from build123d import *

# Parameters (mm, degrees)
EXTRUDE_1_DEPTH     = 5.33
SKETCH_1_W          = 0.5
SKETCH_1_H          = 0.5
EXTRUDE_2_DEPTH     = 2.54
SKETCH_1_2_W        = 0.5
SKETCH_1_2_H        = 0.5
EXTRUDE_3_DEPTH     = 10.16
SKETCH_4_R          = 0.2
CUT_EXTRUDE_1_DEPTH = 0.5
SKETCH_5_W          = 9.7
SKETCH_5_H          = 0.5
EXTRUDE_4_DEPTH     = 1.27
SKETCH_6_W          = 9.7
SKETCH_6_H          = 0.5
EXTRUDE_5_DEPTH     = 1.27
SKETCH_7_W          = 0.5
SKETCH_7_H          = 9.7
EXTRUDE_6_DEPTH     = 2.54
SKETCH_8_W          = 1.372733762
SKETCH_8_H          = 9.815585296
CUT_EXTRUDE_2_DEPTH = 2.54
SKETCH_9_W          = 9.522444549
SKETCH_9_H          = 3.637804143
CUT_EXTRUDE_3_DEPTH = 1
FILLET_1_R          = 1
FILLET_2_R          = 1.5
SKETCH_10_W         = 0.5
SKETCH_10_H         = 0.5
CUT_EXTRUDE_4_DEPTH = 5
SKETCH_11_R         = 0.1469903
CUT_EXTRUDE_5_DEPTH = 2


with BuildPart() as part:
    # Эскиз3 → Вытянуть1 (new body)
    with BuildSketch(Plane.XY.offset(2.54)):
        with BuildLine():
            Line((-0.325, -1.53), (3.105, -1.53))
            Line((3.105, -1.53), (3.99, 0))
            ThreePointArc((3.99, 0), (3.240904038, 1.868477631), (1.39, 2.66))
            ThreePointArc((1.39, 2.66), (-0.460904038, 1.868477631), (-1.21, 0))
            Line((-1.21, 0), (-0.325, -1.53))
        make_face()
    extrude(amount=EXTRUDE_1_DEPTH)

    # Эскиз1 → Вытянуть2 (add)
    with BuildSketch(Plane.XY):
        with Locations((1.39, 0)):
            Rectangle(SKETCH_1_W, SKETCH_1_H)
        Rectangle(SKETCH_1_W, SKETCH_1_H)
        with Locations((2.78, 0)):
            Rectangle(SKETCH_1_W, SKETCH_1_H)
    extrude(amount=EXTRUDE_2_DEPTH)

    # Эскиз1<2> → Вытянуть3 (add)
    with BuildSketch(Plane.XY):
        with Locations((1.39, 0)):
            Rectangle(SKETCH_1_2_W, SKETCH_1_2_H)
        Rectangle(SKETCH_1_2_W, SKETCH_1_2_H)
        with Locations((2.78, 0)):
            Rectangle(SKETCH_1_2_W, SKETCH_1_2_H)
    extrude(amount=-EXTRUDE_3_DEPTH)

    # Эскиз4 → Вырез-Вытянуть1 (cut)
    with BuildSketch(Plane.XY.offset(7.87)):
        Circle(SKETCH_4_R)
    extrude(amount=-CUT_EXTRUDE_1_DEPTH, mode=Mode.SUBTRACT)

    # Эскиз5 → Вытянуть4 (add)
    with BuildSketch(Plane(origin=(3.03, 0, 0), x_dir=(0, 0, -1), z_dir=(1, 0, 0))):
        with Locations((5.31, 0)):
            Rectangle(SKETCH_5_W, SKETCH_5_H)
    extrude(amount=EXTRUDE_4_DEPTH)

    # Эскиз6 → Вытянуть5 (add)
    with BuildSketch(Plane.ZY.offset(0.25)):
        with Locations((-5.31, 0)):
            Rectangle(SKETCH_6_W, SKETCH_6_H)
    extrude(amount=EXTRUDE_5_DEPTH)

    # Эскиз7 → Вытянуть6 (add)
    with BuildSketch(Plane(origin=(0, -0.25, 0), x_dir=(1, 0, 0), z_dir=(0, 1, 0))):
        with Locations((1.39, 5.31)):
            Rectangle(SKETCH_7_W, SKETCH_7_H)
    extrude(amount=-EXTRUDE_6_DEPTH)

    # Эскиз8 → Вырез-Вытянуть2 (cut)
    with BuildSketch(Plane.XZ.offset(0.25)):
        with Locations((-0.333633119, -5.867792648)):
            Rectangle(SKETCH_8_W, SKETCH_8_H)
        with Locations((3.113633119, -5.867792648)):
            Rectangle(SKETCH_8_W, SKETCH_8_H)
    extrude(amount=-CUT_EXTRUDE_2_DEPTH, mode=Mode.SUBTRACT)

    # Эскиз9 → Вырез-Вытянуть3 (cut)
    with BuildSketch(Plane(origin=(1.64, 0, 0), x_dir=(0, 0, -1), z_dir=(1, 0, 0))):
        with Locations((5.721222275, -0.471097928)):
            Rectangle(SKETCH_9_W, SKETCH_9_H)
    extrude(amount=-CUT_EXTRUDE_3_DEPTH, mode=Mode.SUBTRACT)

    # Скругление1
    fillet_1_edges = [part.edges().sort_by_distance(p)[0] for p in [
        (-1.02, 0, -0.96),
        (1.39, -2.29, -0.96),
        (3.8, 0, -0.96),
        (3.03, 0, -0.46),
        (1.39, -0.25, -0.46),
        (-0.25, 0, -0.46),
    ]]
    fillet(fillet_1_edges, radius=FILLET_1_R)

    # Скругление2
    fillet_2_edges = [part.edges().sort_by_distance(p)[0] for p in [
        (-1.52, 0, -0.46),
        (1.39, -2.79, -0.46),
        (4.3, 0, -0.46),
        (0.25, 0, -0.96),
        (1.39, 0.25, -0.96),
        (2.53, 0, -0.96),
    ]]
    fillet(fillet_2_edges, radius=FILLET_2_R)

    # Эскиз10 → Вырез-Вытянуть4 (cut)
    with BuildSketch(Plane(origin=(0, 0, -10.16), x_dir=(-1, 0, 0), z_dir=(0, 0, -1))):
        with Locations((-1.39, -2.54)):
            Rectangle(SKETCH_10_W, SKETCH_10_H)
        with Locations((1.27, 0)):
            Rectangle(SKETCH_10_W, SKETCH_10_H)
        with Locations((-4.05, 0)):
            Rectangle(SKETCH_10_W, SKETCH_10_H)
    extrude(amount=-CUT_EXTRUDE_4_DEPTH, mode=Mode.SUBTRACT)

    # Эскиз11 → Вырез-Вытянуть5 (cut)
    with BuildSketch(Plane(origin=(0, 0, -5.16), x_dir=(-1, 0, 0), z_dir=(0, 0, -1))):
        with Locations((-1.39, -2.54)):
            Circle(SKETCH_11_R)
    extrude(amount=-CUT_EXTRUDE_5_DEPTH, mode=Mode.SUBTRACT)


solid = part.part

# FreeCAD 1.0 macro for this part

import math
import FreeCAD as App
import Part
import Sketcher
Q = App.Units.Quantity


def edges_at(feature, points):
    """Names of the edges that pass closest to the given points."""
    edges = feature.Shape.Edges
    near = lambda p: min(range(len(edges)), key=lambda i: edges[i].distToShape(Part.Vertex(*p))[0])
    return sorted({f"Edge{near(p) + 1}" for p in points})

doc = App.newDocument("Part")
body = doc.addObject("PartDesign::Body", "Body")

sketch1 = body.newObject("Sketcher::SketchObject", "Sketch")
sketch1.AttachmentSupport = (doc.getObject("XY_Plane"), [""])
sketch1.MapMode = "FlatFace"
sketch1.AttachmentOffset = App.Placement(App.Vector(0, 0, 2.54), App.Rotation())
sketch1.addGeometry(Part.LineSegment(App.Vector(-0.325, -1.53, 0), App.Vector(3.105, -1.53, 0)), False)
sketch1.addGeometry(Part.LineSegment(App.Vector(3.105, -1.53, 0), App.Vector(3.99, 0, 0)), False)
sketch1.addGeometry(Part.ArcOfCircle(Part.Circle(App.Vector(1.36, 0.03, 0), App.Vector(0, 0, 1), 2.630171), math.radians(-0.653536), math.radians(89.346464)), False)
sketch1.addGeometry(Part.ArcOfCircle(Part.Circle(App.Vector(1.42, 0.03, 0), App.Vector(0, 0, 1), 2.630171), math.radians(90.653536), math.radians(180.653536)), False)
sketch1.addGeometry(Part.LineSegment(App.Vector(-1.21, 0, 0), App.Vector(-0.325, -1.53, 0)), False)
sketch1.addConstraint(Sketcher.Constraint("Coincident", 0, 2, 1, 1))
sketch1.addConstraint(Sketcher.Constraint("Coincident", 1, 2, 2, 1))
sketch1.addConstraint(Sketcher.Constraint("Coincident", 2, 2, 3, 1))
sketch1.addConstraint(Sketcher.Constraint("Coincident", 3, 2, 4, 1))
sketch1.addConstraint(Sketcher.Constraint("Coincident", 4, 2, 0, 1))
sketch1.addConstraint(Sketcher.Constraint("Horizontal", 0))
sketch1.addConstraint(Sketcher.Constraint("Equal", 2, 3))
sketch1.addConstraint(Sketcher.Constraint("PointOnObject", 1, 2, -1))
sketch1.addConstraint(Sketcher.Constraint("PointOnObject", 3, 2, -1))
sketch1.addConstraint(Sketcher.Constraint("Horizontal", 2, 3, 3, 3))
sketch1.addConstraint(Sketcher.Constraint("Equal", 1, 4))
sketch1.addConstraint(Sketcher.Constraint("DistanceX", 0, 1, 0, 2, Q("3.43 mm")))
sketch1.addConstraint(Sketcher.Constraint("DistanceX", 2, 2, 1, 2, Q("2.6 mm")))
sketch1.addConstraint(Sketcher.Constraint("DistanceX", -1, 1, 2, 3, Q("1.36 mm")))
sketch1.addConstraint(Sketcher.Constraint("DistanceY", -1, 1, 2, 3, Q("0.03 mm")))
sketch1.addConstraint(Sketcher.Constraint("DistanceX", -1, 1, 3, 3, Q("1.42 mm")))
sketch1.addConstraint(Sketcher.Constraint("DistanceY", 0, 2, -1, 1, Q("1.53 mm")))
pad1 = body.newObject("PartDesign::Pad", "Pad")
pad1.Profile = sketch1
pad1.Length = 5.33

sketch2 = body.newObject("Sketcher::SketchObject", "Sketch001")
sketch2.AttachmentSupport = (doc.getObject("XY_Plane"), [""])
sketch2.MapMode = "FlatFace"
sketch2.addGeometry(Part.LineSegment(App.Vector(1.1, 0.2, 0), App.Vector(1.1, -0.2, 0)), False)
sketch2.addGeometry(Part.LineSegment(App.Vector(1.1, -0.2, 0), App.Vector(1.6, -0.2, 0)), False)
sketch2.addGeometry(Part.LineSegment(App.Vector(1.6, -0.2, 0), App.Vector(1.6, 0.2, 0)), False)
sketch2.addGeometry(Part.LineSegment(App.Vector(1.6, 0.2, 0), App.Vector(1.1, 0.2, 0)), False)
sketch2.addGeometry(Part.LineSegment(App.Vector(-0.2, 0.2, 0), App.Vector(-0.2, -0.2, 0)), False)
sketch2.addGeometry(Part.LineSegment(App.Vector(-0.2, -0.2, 0), App.Vector(0.2, -0.2, 0)), False)
sketch2.addGeometry(Part.LineSegment(App.Vector(0.2, -0.2, 0), App.Vector(0.2, 0.2, 0)), False)
sketch2.addGeometry(Part.LineSegment(App.Vector(0.2, 0.2, 0), App.Vector(-0.2, 0.2, 0)), False)
sketch2.addGeometry(Part.LineSegment(App.Vector(2.5, 0.2, 0), App.Vector(2.5, -0.2, 0)), False)
sketch2.addGeometry(Part.LineSegment(App.Vector(2.5, -0.2, 0), App.Vector(3, -0.2, 0)), False)
sketch2.addGeometry(Part.LineSegment(App.Vector(3, -0.2, 0), App.Vector(3, 0.2, 0)), False)
sketch2.addGeometry(Part.LineSegment(App.Vector(3, 0.2, 0), App.Vector(2.5, 0.2, 0)), False)
sketch2.addConstraint(Sketcher.Constraint("Coincident", 0, 2, 1, 1))
sketch2.addConstraint(Sketcher.Constraint("Coincident", 1, 2, 2, 1))
sketch2.addConstraint(Sketcher.Constraint("Coincident", 2, 2, 3, 1))
sketch2.addConstraint(Sketcher.Constraint("Coincident", 3, 2, 0, 1))
sketch2.addConstraint(Sketcher.Constraint("Coincident", 4, 2, 5, 1))
sketch2.addConstraint(Sketcher.Constraint("Coincident", 5, 2, 6, 1))
sketch2.addConstraint(Sketcher.Constraint("Coincident", 6, 2, 7, 1))
sketch2.addConstraint(Sketcher.Constraint("Coincident", 7, 2, 4, 1))
sketch2.addConstraint(Sketcher.Constraint("Coincident", 8, 2, 9, 1))
sketch2.addConstraint(Sketcher.Constraint("Coincident", 9, 2, 10, 1))
sketch2.addConstraint(Sketcher.Constraint("Coincident", 10, 2, 11, 1))
sketch2.addConstraint(Sketcher.Constraint("Coincident", 11, 2, 8, 1))
sketch2.addConstraint(Sketcher.Constraint("Vertical", 0))
sketch2.addConstraint(Sketcher.Constraint("Horizontal", 1))
sketch2.addConstraint(Sketcher.Constraint("Vertical", 2))
sketch2.addConstraint(Sketcher.Constraint("Horizontal", 3))
sketch2.addConstraint(Sketcher.Constraint("Vertical", 4))
sketch2.addConstraint(Sketcher.Constraint("Horizontal", 5))
sketch2.addConstraint(Sketcher.Constraint("Vertical", 6))
sketch2.addConstraint(Sketcher.Constraint("Horizontal", 7))
sketch2.addConstraint(Sketcher.Constraint("Vertical", 8))
sketch2.addConstraint(Sketcher.Constraint("Horizontal", 9))
sketch2.addConstraint(Sketcher.Constraint("Vertical", 10))
sketch2.addConstraint(Sketcher.Constraint("Horizontal", 11))
sketch2.addConstraint(Sketcher.Constraint("Symmetric", 4, 2, 6, 2, -1, 1))
sketch2.addConstraint(Sketcher.Constraint("Horizontal", 1, 2, 4, 2))
sketch2.addConstraint(Sketcher.Constraint("Horizontal", 3, 2, 6, 2))
sketch2.addConstraint(Sketcher.Constraint("Horizontal", 5, 2, 8, 2))
sketch2.addConstraint(Sketcher.Constraint("Horizontal", 7, 2, 10, 2))
sketch2.addConstraint(Sketcher.Constraint("Equal", 3, 5))
sketch2.addConstraint(Sketcher.Constraint("Equal", 7, 9))
sketch2.addConstraint(Sketcher.Constraint("Equal", 11, 0))
sketch2.addConstraint(Sketcher.Constraint("DistanceX", 1, 1, 1, 2, Q("0.5 mm")))
sketch2.addConstraint(Sketcher.Constraint("DistanceX", -1, 1, 0, 2, Q("1.14 mm")))
sketch2.addConstraint(Sketcher.Constraint("DistanceX", -1, 1, 8, 2, Q("2.53 mm")))
pad2 = body.newObject("PartDesign::Pad", "Pad001")
pad2.Profile = sketch2
pad2.Length = 2.54

sketch3 = body.newObject("Sketcher::SketchObject", "Sketch002")
sketch3.AttachmentSupport = (doc.getObject("XY_Plane"), [""])
sketch3.MapMode = "FlatFace"
sketch3.addGeometry(Part.LineSegment(App.Vector(1.1, 0.2, 0), App.Vector(1.1, -0.2, 0)), False)
sketch3.addGeometry(Part.LineSegment(App.Vector(1.1, -0.2, 0), App.Vector(1.6, -0.2, 0)), False)
sketch3.addGeometry(Part.LineSegment(App.Vector(1.6, -0.2, 0), App.Vector(1.6, 0.2, 0)), False)
sketch3.addGeometry(Part.LineSegment(App.Vector(1.6, 0.2, 0), App.Vector(1.1, 0.2, 0)), False)
sketch3.addGeometry(Part.LineSegment(App.Vector(-0.2, 0.2, 0), App.Vector(-0.2, -0.2, 0)), False)
sketch3.addGeometry(Part.LineSegment(App.Vector(-0.2, -0.2, 0), App.Vector(0.2, -0.2, 0)), False)
sketch3.addGeometry(Part.LineSegment(App.Vector(0.2, -0.2, 0), App.Vector(0.2, 0.2, 0)), False)
sketch3.addGeometry(Part.LineSegment(App.Vector(0.2, 0.2, 0), App.Vector(-0.2, 0.2, 0)), False)
sketch3.addGeometry(Part.LineSegment(App.Vector(2.5, 0.2, 0), App.Vector(2.5, -0.2, 0)), False)
sketch3.addGeometry(Part.LineSegment(App.Vector(2.5, -0.2, 0), App.Vector(3, -0.2, 0)), False)
sketch3.addGeometry(Part.LineSegment(App.Vector(3, -0.2, 0), App.Vector(3, 0.2, 0)), False)
sketch3.addGeometry(Part.LineSegment(App.Vector(3, 0.2, 0), App.Vector(2.5, 0.2, 0)), False)
sketch3.addConstraint(Sketcher.Constraint("Coincident", 0, 2, 1, 1))
sketch3.addConstraint(Sketcher.Constraint("Coincident", 1, 2, 2, 1))
sketch3.addConstraint(Sketcher.Constraint("Coincident", 2, 2, 3, 1))
sketch3.addConstraint(Sketcher.Constraint("Coincident", 3, 2, 0, 1))
sketch3.addConstraint(Sketcher.Constraint("Coincident", 4, 2, 5, 1))
sketch3.addConstraint(Sketcher.Constraint("Coincident", 5, 2, 6, 1))
sketch3.addConstraint(Sketcher.Constraint("Coincident", 6, 2, 7, 1))
sketch3.addConstraint(Sketcher.Constraint("Coincident", 7, 2, 4, 1))
sketch3.addConstraint(Sketcher.Constraint("Coincident", 8, 2, 9, 1))
sketch3.addConstraint(Sketcher.Constraint("Coincident", 9, 2, 10, 1))
sketch3.addConstraint(Sketcher.Constraint("Coincident", 10, 2, 11, 1))
sketch3.addConstraint(Sketcher.Constraint("Coincident", 11, 2, 8, 1))
sketch3.addConstraint(Sketcher.Constraint("Vertical", 0))
sketch3.addConstraint(Sketcher.Constraint("Horizontal", 1))
sketch3.addConstraint(Sketcher.Constraint("Vertical", 2))
sketch3.addConstraint(Sketcher.Constraint("Horizontal", 3))
sketch3.addConstraint(Sketcher.Constraint("Vertical", 4))
sketch3.addConstraint(Sketcher.Constraint("Horizontal", 5))
sketch3.addConstraint(Sketcher.Constraint("Vertical", 6))
sketch3.addConstraint(Sketcher.Constraint("Horizontal", 7))
sketch3.addConstraint(Sketcher.Constraint("Vertical", 8))
sketch3.addConstraint(Sketcher.Constraint("Horizontal", 9))
sketch3.addConstraint(Sketcher.Constraint("Vertical", 10))
sketch3.addConstraint(Sketcher.Constraint("Horizontal", 11))
sketch3.addConstraint(Sketcher.Constraint("Symmetric", 4, 2, 6, 2, -1, 1))
sketch3.addConstraint(Sketcher.Constraint("Horizontal", 1, 2, 4, 2))
sketch3.addConstraint(Sketcher.Constraint("Horizontal", 3, 2, 6, 2))
sketch3.addConstraint(Sketcher.Constraint("Horizontal", 5, 2, 8, 2))
sketch3.addConstraint(Sketcher.Constraint("Horizontal", 7, 2, 10, 2))
sketch3.addConstraint(Sketcher.Constraint("Equal", 3, 5))
sketch3.addConstraint(Sketcher.Constraint("Equal", 7, 9))
sketch3.addConstraint(Sketcher.Constraint("Equal", 11, 0))
sketch3.addConstraint(Sketcher.Constraint("DistanceX", 1, 1, 1, 2, Q("0.5 mm")))
sketch3.addConstraint(Sketcher.Constraint("DistanceX", -1, 1, 0, 2, Q("1.14 mm")))
sketch3.addConstraint(Sketcher.Constraint("DistanceX", -1, 1, 8, 2, Q("2.53 mm")))
pad3 = body.newObject("PartDesign::Pad", "Pad002")
pad3.Profile = sketch3
pad3.Length = 10.16
pad3.Reversed = True

sketch4 = body.newObject("Sketcher::SketchObject", "Sketch003")
sketch4.AttachmentSupport = (doc.getObject("XY_Plane"), [""])
sketch4.MapMode = "FlatFace"
sketch4.AttachmentOffset = App.Placement(App.Vector(0, 0, 7.87), App.Rotation())
sketch4.addGeometry(Part.Circle(App.Vector(0, 0, 0), App.Vector(0, 0, 1), 0.2), False)
sketch4.addConstraint(Sketcher.Constraint("Coincident", 0, 3, -1, 1))
sketch4.addConstraint(Sketcher.Constraint("Diameter", 0, Q("0.4 mm")))
pocket1 = body.newObject("PartDesign::Pocket", "Pocket")
pocket1.Profile = sketch4
pocket1.Length = 0.5

sketch5 = body.newObject("Sketcher::SketchObject", "Sketch004")
sketch5.AttachmentSupport = (doc.getObject("YZ_Plane"), [""])
sketch5.MapMode = "FlatFace"
sketch5.AttachmentOffset = App.Placement(App.Vector(0, 0, 3.03), App.Rotation())
sketch5.addGeometry(Part.LineSegment(App.Vector(0.2, -0.5, 0), App.Vector(-0.2, -0.5, 0)), False)
sketch5.addGeometry(Part.LineSegment(App.Vector(-0.2, -0.5, 0), App.Vector(-0.2, -10.2, 0)), False)
sketch5.addGeometry(Part.LineSegment(App.Vector(-0.2, -10.2, 0), App.Vector(0.2, -10.2, 0)), False)
sketch5.addGeometry(Part.LineSegment(App.Vector(0.2, -10.2, 0), App.Vector(0.2, -0.5, 0)), False)
sketch5.addConstraint(Sketcher.Constraint("Coincident", 0, 2, 1, 1))
sketch5.addConstraint(Sketcher.Constraint("Coincident", 1, 2, 2, 1))
sketch5.addConstraint(Sketcher.Constraint("Coincident", 2, 2, 3, 1))
sketch5.addConstraint(Sketcher.Constraint("Coincident", 3, 2, 0, 1))
sketch5.addConstraint(Sketcher.Constraint("Horizontal", 0))
sketch5.addConstraint(Sketcher.Constraint("Vertical", 1))
sketch5.addConstraint(Sketcher.Constraint("Horizontal", 2))
sketch5.addConstraint(Sketcher.Constraint("Vertical", 3))
sketch5.addConstraint(Sketcher.Constraint("DistanceX", 0, 2, 0, 1, Q("0.5 mm")))
sketch5.addConstraint(Sketcher.Constraint("DistanceY", 1, 2, 1, 1, Q("9.7 mm")))
sketch5.addConstraint(Sketcher.Constraint("DistanceX", 0, 2, -1, 1, Q("0.25 mm")))
sketch5.addConstraint(Sketcher.Constraint("DistanceY", 0, 2, -1, 1, Q("0.46 mm")))
pad4 = body.newObject("PartDesign::Pad", "Pad003")
pad4.Profile = sketch5
pad4.Length = 1.27

sketch6 = body.newObject("Sketcher::SketchObject", "Sketch005")
sketch6.AttachmentSupport = (doc.getObject("YZ_Plane"), [""])
sketch6.MapMode = "FlatFace"
sketch6.AttachmentOffset = App.Placement(App.Vector(0, 0, -0.25), App.Rotation())
sketch6.addGeometry(Part.LineSegment(App.Vector(0.2, -10.2, 0), App.Vector(-0.2, -10.2, 0)), False)
sketch6.addGeometry(Part.LineSegment(App.Vector(-0.2, -10.2, 0), App.Vector(-0.2, -0.5, 0)), False)
sketch6.addGeometry(Part.LineSegment(App.Vector(-0.2, -0.5, 0), App.Vector(0.2, -0.5, 0)), False)
sketch6.addGeometry(Part.LineSegment(App.Vector(0.2, -0.5, 0), App.Vector(0.2, -10.2, 0)), False)
sketch6.addConstraint(Sketcher.Constraint("Coincident", 0, 2, 1, 1))
sketch6.addConstraint(Sketcher.Constraint("Coincident", 1, 2, 2, 1))
sketch6.addConstraint(Sketcher.Constraint("Coincident", 2, 2, 3, 1))
sketch6.addConstraint(Sketcher.Constraint("Coincident", 3, 2, 0, 1))
sketch6.addConstraint(Sketcher.Constraint("Horizontal", 0))
sketch6.addConstraint(Sketcher.Constraint("Vertical", 1))
sketch6.addConstraint(Sketcher.Constraint("Horizontal", 2))
sketch6.addConstraint(Sketcher.Constraint("Vertical", 3))
sketch6.addConstraint(Sketcher.Constraint("DistanceX", 0, 2, 0, 1, Q("0.5 mm")))
sketch6.addConstraint(Sketcher.Constraint("DistanceY", 1, 1, 1, 2, Q("9.7 mm")))
sketch6.addConstraint(Sketcher.Constraint("DistanceX", 0, 2, -1, 1, Q("0.25 mm")))
sketch6.addConstraint(Sketcher.Constraint("DistanceY", 0, 2, -1, 1, Q("10.16 mm")))
pad5 = body.newObject("PartDesign::Pad", "Pad004")
pad5.Profile = sketch6
pad5.Length = 1.27
pad5.Reversed = True

sketch7 = body.newObject("Sketcher::SketchObject", "Sketch006")
sketch7.AttachmentSupport = (doc.getObject("XZ_Plane"), [""])
sketch7.MapMode = "FlatFace"
sketch7.AttachmentOffset = App.Placement(App.Vector(0, 0, 0.25), App.Rotation())
sketch7.addGeometry(Part.LineSegment(App.Vector(1.1, -10.2, 0), App.Vector(1.1, -0.5, 0)), False)
sketch7.addGeometry(Part.LineSegment(App.Vector(1.1, -0.5, 0), App.Vector(1.6, -0.5, 0)), False)
sketch7.addGeometry(Part.LineSegment(App.Vector(1.6, -0.5, 0), App.Vector(1.6, -10.2, 0)), False)
sketch7.addGeometry(Part.LineSegment(App.Vector(1.6, -10.2, 0), App.Vector(1.1, -10.2, 0)), False)
sketch7.addConstraint(Sketcher.Constraint("Coincident", 0, 2, 1, 1))
sketch7.addConstraint(Sketcher.Constraint("Coincident", 1, 2, 2, 1))
sketch7.addConstraint(Sketcher.Constraint("Coincident", 2, 2, 3, 1))
sketch7.addConstraint(Sketcher.Constraint("Coincident", 3, 2, 0, 1))
sketch7.addConstraint(Sketcher.Constraint("Vertical", 0))
sketch7.addConstraint(Sketcher.Constraint("Horizontal", 1))
sketch7.addConstraint(Sketcher.Constraint("Vertical", 2))
sketch7.addConstraint(Sketcher.Constraint("Horizontal", 3))
sketch7.addConstraint(Sketcher.Constraint("DistanceX", 1, 1, 1, 2, Q("0.5 mm")))
sketch7.addConstraint(Sketcher.Constraint("DistanceY", 0, 1, 0, 2, Q("9.7 mm")))
sketch7.addConstraint(Sketcher.Constraint("DistanceX", -1, 1, 0, 2, Q("1.14 mm")))
sketch7.addConstraint(Sketcher.Constraint("DistanceY", 0, 2, -1, 1, Q("0.46 mm")))
pad6 = body.newObject("PartDesign::Pad", "Pad005")
pad6.Profile = sketch7
pad6.Length = 2.54

sketch8 = body.newObject("Sketcher::SketchObject", "Sketch007")
sketch8.AttachmentSupport = (doc.getObject("XZ_Plane"), [""])
sketch8.MapMode = "FlatFace"
sketch8.AttachmentOffset = App.Placement(App.Vector(0, 0, 0.25), App.Rotation())
sketch8.addGeometry(Part.LineSegment(App.Vector(-1, -1, 0), App.Vector(-1, -10.8, 0)), False)
sketch8.addGeometry(Part.LineSegment(App.Vector(-1, -10.8, 0), App.Vector(0.4, -10.8, 0)), False)
sketch8.addGeometry(Part.LineSegment(App.Vector(0.4, -10.8, 0), App.Vector(0.4, -1, 0)), False)
sketch8.addGeometry(Part.LineSegment(App.Vector(0.4, -1, 0), App.Vector(-1, -1, 0)), False)
sketch8.addGeometry(Part.LineSegment(App.Vector(2.4, -1, 0), App.Vector(2.4, -10.8, 0)), False)
sketch8.addGeometry(Part.LineSegment(App.Vector(2.4, -10.8, 0), App.Vector(3.8, -10.8, 0)), False)
sketch8.addGeometry(Part.LineSegment(App.Vector(3.8, -10.8, 0), App.Vector(3.8, -1, 0)), False)
sketch8.addGeometry(Part.LineSegment(App.Vector(3.8, -1, 0), App.Vector(2.4, -1, 0)), False)
sketch8.addConstraint(Sketcher.Constraint("Coincident", 0, 2, 1, 1))
sketch8.addConstraint(Sketcher.Constraint("Coincident", 1, 2, 2, 1))
sketch8.addConstraint(Sketcher.Constraint("Coincident", 2, 2, 3, 1))
sketch8.addConstraint(Sketcher.Constraint("Coincident", 3, 2, 0, 1))
sketch8.addConstraint(Sketcher.Constraint("Coincident", 4, 2, 5, 1))
sketch8.addConstraint(Sketcher.Constraint("Coincident", 5, 2, 6, 1))
sketch8.addConstraint(Sketcher.Constraint("Coincident", 6, 2, 7, 1))
sketch8.addConstraint(Sketcher.Constraint("Coincident", 7, 2, 4, 1))
sketch8.addConstraint(Sketcher.Constraint("Vertical", 0))
sketch8.addConstraint(Sketcher.Constraint("Horizontal", 1))
sketch8.addConstraint(Sketcher.Constraint("Vertical", 2))
sketch8.addConstraint(Sketcher.Constraint("Horizontal", 3))
sketch8.addConstraint(Sketcher.Constraint("Vertical", 4))
sketch8.addConstraint(Sketcher.Constraint("Horizontal", 5))
sketch8.addConstraint(Sketcher.Constraint("Vertical", 6))
sketch8.addConstraint(Sketcher.Constraint("Horizontal", 7))
sketch8.addConstraint(Sketcher.Constraint("Horizontal", 1, 2, 4, 2))
sketch8.addConstraint(Sketcher.Constraint("Horizontal", 3, 2, 6, 2))
sketch8.addConstraint(Sketcher.Constraint("Equal", 3, 5))
sketch8.addConstraint(Sketcher.Constraint("DistanceX", -1, 1, 5, 2, Q("3.8 mm")))
sketch8.addConstraint(Sketcher.Constraint("DistanceX", 0, 2, -1, 1, Q("1.02 mm")))
sketch8.addConstraint(Sketcher.Constraint("DistanceY", 2, 2, -1, 1, Q("0.96 mm")))
sketch8.addConstraint(Sketcher.Constraint("DistanceX", 1, 1, 1, 2, Q("1.372734 mm")))
sketch8.addConstraint(Sketcher.Constraint("DistanceY", 0, 2, 0, 1, Q("9.815585 mm")))
pocket2 = body.newObject("PartDesign::Pocket", "Pocket001")
pocket2.Profile = sketch8
pocket2.Length = 2.54

sketch9 = body.newObject("Sketcher::SketchObject", "Sketch008")
sketch9.AttachmentSupport = (doc.getObject("YZ_Plane"), [""])
sketch9.MapMode = "FlatFace"
sketch9.AttachmentOffset = App.Placement(App.Vector(0, 0, 1.64), App.Rotation())
sketch9.addGeometry(Part.LineSegment(App.Vector(1.3, -1, 0), App.Vector(-2.3, -1, 0)), False)
sketch9.addGeometry(Part.LineSegment(App.Vector(-2.3, -1, 0), App.Vector(-2.3, -10.5, 0)), False)
sketch9.addGeometry(Part.LineSegment(App.Vector(-2.3, -10.5, 0), App.Vector(1.3, -10.5, 0)), False)
sketch9.addGeometry(Part.LineSegment(App.Vector(1.3, -10.5, 0), App.Vector(1.3, -1, 0)), False)
sketch9.addConstraint(Sketcher.Constraint("Coincident", 0, 2, 1, 1))
sketch9.addConstraint(Sketcher.Constraint("Coincident", 1, 2, 2, 1))
sketch9.addConstraint(Sketcher.Constraint("Coincident", 2, 2, 3, 1))
sketch9.addConstraint(Sketcher.Constraint("Coincident", 3, 2, 0, 1))
sketch9.addConstraint(Sketcher.Constraint("Horizontal", 0))
sketch9.addConstraint(Sketcher.Constraint("Vertical", 1))
sketch9.addConstraint(Sketcher.Constraint("Horizontal", 2))
sketch9.addConstraint(Sketcher.Constraint("Vertical", 3))
sketch9.addConstraint(Sketcher.Constraint("DistanceX", 0, 2, -1, 1, Q("2.29 mm")))
sketch9.addConstraint(Sketcher.Constraint("DistanceY", 0, 2, -1, 1, Q("0.96 mm")))
sketch9.addConstraint(Sketcher.Constraint("DistanceX", 0, 2, 0, 1, Q("3.637804 mm")))
sketch9.addConstraint(Sketcher.Constraint("DistanceY", 1, 2, 1, 1, Q("9.522445 mm")))
pocket3 = body.newObject("PartDesign::Pocket", "Pocket002")
pocket3.Profile = sketch9
pocket3.Length = 1
doc.recompute()

fillet = body.newObject("PartDesign::Fillet", "Fillet")
fillet.Base = (pocket3, edges_at(pocket3, [
    (-1.02, 0, -0.96),
    (1.39, -2.29, -0.96),
    (3.8, 0, -0.96),
    (3.03, 0, -0.46),
    (1.39, -0.25, -0.46),
    (-0.25, 0, -0.46),
]))
fillet.Radius = 1
doc.recompute()

fillet2 = body.newObject("PartDesign::Fillet", "Fillet001")
fillet2.Base = (fillet, edges_at(fillet, [
    (-1.52, 0, -0.46),
    (1.39, -2.79, -0.46),
    (4.3, 0, -0.46),
    (0.25, 0, -0.96),
    (1.39, 0.25, -0.96),
    (2.53, 0, -0.96),
]))
fillet2.Radius = 1.5

sketch10 = body.newObject("Sketcher::SketchObject", "Sketch009")
sketch10.AttachmentSupport = (doc.getObject("XY_Plane"), [""])
sketch10.MapMode = "FlatFace"
sketch10.AttachmentOffset = App.Placement(App.Vector(0, 0, -10.16), App.Rotation())
sketch10.addGeometry(Part.LineSegment(App.Vector(1.6, -2.3, 0), App.Vector(1.6, -2.8, 0)), False)
sketch10.addGeometry(Part.LineSegment(App.Vector(1.6, -2.8, 0), App.Vector(1.1, -2.8, 0)), False)
sketch10.addGeometry(Part.LineSegment(App.Vector(1.1, -2.8, 0), App.Vector(1.1, -2.3, 0)), False)
sketch10.addGeometry(Part.LineSegment(App.Vector(1.1, -2.3, 0), App.Vector(1.6, -2.3, 0)), False)
sketch10.addGeometry(Part.LineSegment(App.Vector(-1, 0.2, 0), App.Vector(-1, -0.2, 0)), False)
sketch10.addGeometry(Part.LineSegment(App.Vector(-1, -0.2, 0), App.Vector(-1.5, -0.2, 0)), False)
sketch10.addGeometry(Part.LineSegment(App.Vector(-1.5, -0.2, 0), App.Vector(-1.5, 0.2, 0)), False)
sketch10.addGeometry(Part.LineSegment(App.Vector(-1.5, 0.2, 0), App.Vector(-1, 0.2, 0)), False)
sketch10.addGeometry(Part.LineSegment(App.Vector(4.3, 0.2, 0), App.Vector(4.3, -0.2, 0)), False)
sketch10.addGeometry(Part.LineSegment(App.Vector(4.3, -0.2, 0), App.Vector(3.8, -0.2, 0)), False)
sketch10.addGeometry(Part.LineSegment(App.Vector(3.8, -0.2, 0), App.Vector(3.8, 0.2, 0)), False)
sketch10.addGeometry(Part.LineSegment(App.Vector(3.8, 0.2, 0), App.Vector(4.3, 0.2, 0)), False)
sketch10.addConstraint(Sketcher.Constraint("Coincident", 0, 2, 1, 1))
sketch10.addConstraint(Sketcher.Constraint("Coincident", 1, 2, 2, 1))
sketch10.addConstraint(Sketcher.Constraint("Coincident", 2, 2, 3, 1))
sketch10.addConstraint(Sketcher.Constraint("Coincident", 3, 2, 0, 1))
sketch10.addConstraint(Sketcher.Constraint("Coincident", 4, 2, 5, 1))
sketch10.addConstraint(Sketcher.Constraint("Coincident", 5, 2, 6, 1))
sketch10.addConstraint(Sketcher.Constraint("Coincident", 6, 2, 7, 1))
sketch10.addConstraint(Sketcher.Constraint("Coincident", 7, 2, 4, 1))
sketch10.addConstraint(Sketcher.Constraint("Coincident", 8, 2, 9, 1))
sketch10.addConstraint(Sketcher.Constraint("Coincident", 9, 2, 10, 1))
sketch10.addConstraint(Sketcher.Constraint("Coincident", 10, 2, 11, 1))
sketch10.addConstraint(Sketcher.Constraint("Coincident", 11, 2, 8, 1))
sketch10.addConstraint(Sketcher.Constraint("Vertical", 0))
sketch10.addConstraint(Sketcher.Constraint("Horizontal", 1))
sketch10.addConstraint(Sketcher.Constraint("Vertical", 2))
sketch10.addConstraint(Sketcher.Constraint("Horizontal", 3))
sketch10.addConstraint(Sketcher.Constraint("Vertical", 4))
sketch10.addConstraint(Sketcher.Constraint("Horizontal", 5))
sketch10.addConstraint(Sketcher.Constraint("Vertical", 6))
sketch10.addConstraint(Sketcher.Constraint("Horizontal", 7))
sketch10.addConstraint(Sketcher.Constraint("Vertical", 8))
sketch10.addConstraint(Sketcher.Constraint("Horizontal", 9))
sketch10.addConstraint(Sketcher.Constraint("Vertical", 10))
sketch10.addConstraint(Sketcher.Constraint("Horizontal", 11))
sketch10.addConstraint(Sketcher.Constraint("Horizontal", 5, 2, 8, 2))
sketch10.addConstraint(Sketcher.Constraint("Horizontal", 7, 2, 10, 2))
sketch10.addConstraint(Sketcher.Constraint("Equal", 3, 5))
sketch10.addConstraint(Sketcher.Constraint("Equal", 7, 9))
sketch10.addConstraint(Sketcher.Constraint("Equal", 11, 0))
sketch10.addConstraint(Sketcher.Constraint("Equal", 2, 4))
sketch10.addConstraint(Sketcher.Constraint("DistanceX", 1, 2, 1, 1, Q("0.5 mm")))
sketch10.addConstraint(Sketcher.Constraint("DistanceX", -1, 1, 8, 2, Q("4.3 mm")))
sketch10.addConstraint(Sketcher.Constraint("DistanceX", -1, 1, 0, 2, Q("1.64 mm")))
sketch10.addConstraint(Sketcher.Constraint("DistanceY", 0, 2, -1, 1, Q("2.79 mm")))
sketch10.addConstraint(Sketcher.Constraint("DistanceX", 4, 2, -1, 1, Q("1.02 mm")))
sketch10.addConstraint(Sketcher.Constraint("DistanceY", 4, 2, -1, 1, Q("0.25 mm")))
pocket4 = body.newObject("PartDesign::Pocket", "Pocket003")
pocket4.Profile = sketch10
pocket4.Length = 5
pocket4.Reversed = True

sketch11 = body.newObject("Sketcher::SketchObject", "Sketch010")
sketch11.AttachmentSupport = (doc.getObject("XY_Plane"), [""])
sketch11.MapMode = "FlatFace"
sketch11.AttachmentOffset = App.Placement(App.Vector(0, 0, -5.16), App.Rotation())
sketch11.addGeometry(Part.Circle(App.Vector(1.39, -2.54, 0), App.Vector(0, 0, 1), 0.15), False)
sketch11.addConstraint(Sketcher.Constraint("Diameter", 0, Q("0.293981 mm")))
sketch11.addConstraint(Sketcher.Constraint("DistanceX", -1, 1, 0, 3, Q("1.39 mm")))
sketch11.addConstraint(Sketcher.Constraint("DistanceY", 0, 3, -1, 1, Q("2.54 mm")))
pocket5 = body.newObject("PartDesign::Pocket", "Pocket004")
pocket5.Profile = sketch11
pocket5.Length = 2
pocket5.Reversed = True

doc.recompute()
